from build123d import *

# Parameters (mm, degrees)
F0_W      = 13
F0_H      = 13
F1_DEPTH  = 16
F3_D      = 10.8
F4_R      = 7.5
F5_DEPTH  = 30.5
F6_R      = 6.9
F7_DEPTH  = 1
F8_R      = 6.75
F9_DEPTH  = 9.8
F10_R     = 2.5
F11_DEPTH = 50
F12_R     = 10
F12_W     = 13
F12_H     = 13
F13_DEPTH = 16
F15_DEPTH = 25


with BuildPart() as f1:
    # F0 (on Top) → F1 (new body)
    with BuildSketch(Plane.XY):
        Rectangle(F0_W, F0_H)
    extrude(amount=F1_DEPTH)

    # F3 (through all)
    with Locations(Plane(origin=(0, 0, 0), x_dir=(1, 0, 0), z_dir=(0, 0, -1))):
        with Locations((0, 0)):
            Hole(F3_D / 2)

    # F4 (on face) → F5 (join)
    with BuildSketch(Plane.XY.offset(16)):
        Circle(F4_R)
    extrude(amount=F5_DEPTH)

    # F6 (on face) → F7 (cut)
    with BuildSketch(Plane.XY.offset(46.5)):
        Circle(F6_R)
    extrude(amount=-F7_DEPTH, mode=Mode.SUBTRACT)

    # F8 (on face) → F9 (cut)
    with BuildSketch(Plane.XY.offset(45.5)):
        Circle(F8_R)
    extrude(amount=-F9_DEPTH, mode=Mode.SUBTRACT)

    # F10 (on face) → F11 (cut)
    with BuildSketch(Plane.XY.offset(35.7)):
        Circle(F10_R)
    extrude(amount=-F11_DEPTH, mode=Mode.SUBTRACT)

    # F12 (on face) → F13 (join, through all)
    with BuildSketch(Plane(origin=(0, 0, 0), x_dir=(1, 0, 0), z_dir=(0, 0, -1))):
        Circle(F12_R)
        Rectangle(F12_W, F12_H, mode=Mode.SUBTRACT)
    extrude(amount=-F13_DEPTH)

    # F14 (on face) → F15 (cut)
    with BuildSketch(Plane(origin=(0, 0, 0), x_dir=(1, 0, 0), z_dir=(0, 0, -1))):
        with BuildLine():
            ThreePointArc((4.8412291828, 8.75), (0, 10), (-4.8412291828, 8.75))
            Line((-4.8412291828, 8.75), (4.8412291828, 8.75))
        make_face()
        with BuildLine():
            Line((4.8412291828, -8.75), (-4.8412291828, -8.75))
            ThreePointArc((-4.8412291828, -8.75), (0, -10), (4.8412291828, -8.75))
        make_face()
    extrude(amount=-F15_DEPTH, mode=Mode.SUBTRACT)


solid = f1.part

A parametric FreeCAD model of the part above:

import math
import FreeCAD as App
import Part
import Sketcher
Q = App.Units.Quantity

doc = App.newDocument("Part")
body = doc.addObject("PartDesign::Body", "Body")

sketch1 = doc.addObject("Sketcher::SketchObject", "Sketch")
body.addObject(sketch1)
sketch1.AttachmentSupport = (doc.XY_Plane, [""])
sketch1.MapMode = "FlatFace"
sketch1.addGeometry([
    Part.LineSegment(App.Vector(-6, 6, 0), App.Vector(-6, -6, 0)),
    Part.LineSegment(App.Vector(-6, -6, 0), App.Vector(6, -6, 0)),
    Part.LineSegment(App.Vector(6, -6, 0), App.Vector(6, 6, 0)),
    Part.LineSegment(App.Vector(6, 6, 0), App.Vector(-6, 6, 0)),
], False)
sketch1.addConstraint([
    Sketcher.Constraint("Coincident", 0, 2, 1, 1),
    Sketcher.Constraint("Coincident", 1, 2, 2, 1),
    Sketcher.Constraint("Coincident", 2, 2, 3, 1),
    Sketcher.Constraint("Coincident", 3, 2, 0, 1),
    Sketcher.Constraint("Vertical", 0),
    Sketcher.Constraint("Horizontal", 1),
    Sketcher.Constraint("Vertical", 2),
    Sketcher.Constraint("Horizontal", 3),
    Sketcher.Constraint("Symmetric", 0, 2, 2, 2, -1, 1),
    Sketcher.Constraint("Equal", 3, 0),
    Sketcher.Constraint("DistanceX", 1, 1, 1, 2, Q("13 mm")),
])
pad1 = doc.addObject("PartDesign::Pad", "Pad")
body.addObject(pad1)
pad1.Profile = sketch1
pad1.Length = 16

sketch2 = doc.addObject("Sketcher::SketchObject", "Sketch001")
body.addObject(sketch2)
sketch2.AttachmentSupport = (doc.XY_Plane, [""])
sketch2.MapMode = "FlatFace"
sketch2.addGeometry(Part.Circle(App.Vector(0, 0, 0), App.Vector(0, 0, 1), 5), False)
sketch2.addConstraint([
    Sketcher.Constraint("Coincident", 0, 3, -1, 1),
    Sketcher.Constraint("Diameter", 0, Q("10.8 mm")),
])
doc.recompute()
hole = doc.addObject("PartDesign::Hole", "Hole")
body.addObject(hole)
hole.Profile = sketch2
hole.ThreadType = "None"
hole.Diameter = 10.8
hole.DepthType = "ThroughAll"
hole.Reversed = True

sketch3 = doc.addObject("Sketcher::SketchObject", "Sketch002")
body.addObject(sketch3)
sketch3.AttachmentSupport = (doc.XY_Plane, [""])
sketch3.MapMode = "FlatFace"
sketch3.AttachmentOffset = App.Placement(App.Vector(0, 0, 16), App.Rotation())
sketch3.addGeometry(Part.Circle(App.Vector(0, 0, 0), App.Vector(0, 0, 1), 8), False)
sketch3.addConstraint([
    Sketcher.Constraint("Coincident", 0, 3, -1, 1),
    Sketcher.Constraint("Diameter", 0, Q("15 mm")),
])
pad2 = doc.addObject("PartDesign::Pad", "Pad001")
body.addObject(pad2)
pad2.Profile = sketch3
pad2.Length = 30.5

sketch4 = doc.addObject("Sketcher::SketchObject", "Sketch003")
body.addObject(sketch4)
sketch4.AttachmentSupport = (doc.XY_Plane, [""])
sketch4.MapMode = "FlatFace"
sketch4.AttachmentOffset = App.Placement(App.Vector(0, 0, 46.5), App.Rotation())
sketch4.addGeometry(Part.Circle(App.Vector(0, 0, 0), App.Vector(0, 0, 1), 7), False)
sketch4.addConstraint([
    Sketcher.Constraint("Coincident", 0, 3, -1, 1),
    Sketcher.Constraint("Diameter", 0, Q("13.8 mm")),
])
pocket1 = doc.addObject("PartDesign::Pocket", "Pocket")
body.addObject(pocket1)
pocket1.Profile = sketch4
pocket1.Length = 1

sketch5 = doc.addObject("Sketcher::SketchObject", "Sketch004")
body.addObject(sketch5)
sketch5.AttachmentSupport = (doc.XY_Plane, [""])
sketch5.MapMode = "FlatFace"
sketch5.AttachmentOffset = App.Placement(App.Vector(0, 0, 45.5), App.Rotation())
sketch5.addGeometry(Part.Circle(App.Vector(0, 0, 0), App.Vector(0, 0, 1), 7), False)
sketch5.addConstraint([
    Sketcher.Constraint("Coincident", 0, 3, -1, 1),
    Sketcher.Constraint("Diameter", 0, Q("13.5 mm")),
])
pocket2 = doc.addObject("PartDesign::Pocket", "Pocket001")
body.addObject(pocket2)
pocket2.Profile = sketch5
pocket2.Length = 9.8

sketch6 = doc.addObject("Sketcher::SketchObject", "Sketch005")
body.addObject(sketch6)
sketch6.AttachmentSupport = (doc.XY_Plane, [""])
sketch6.MapMode = "FlatFace"
sketch6.AttachmentOffset = App.Placement(App.Vector(0, 0, 35.7), App.Rotation())
sketch6.addGeometry(Part.Circle(App.Vector(0, 0, 0), App.Vector(0, 0, 1), 2.5), False)
sketch6.addConstraint([
    Sketcher.Constraint("Coincident", 0, 3, -1, 1),
    Sketcher.Constraint("Diameter", 0, Q("5 mm")),
])
pocket3 = doc.addObject("PartDesign::Pocket", "Pocket002")
body.addObject(pocket3)
pocket3.Profile = sketch6
pocket3.Length = 50

sketch7 = doc.addObject("Sketcher::SketchObject", "Sketch006")
body.addObject(sketch7)
sketch7.AttachmentSupport = (doc.XY_Plane, [""])
sketch7.MapMode = "FlatFace"
sketch7.addGeometry([
    Part.Circle(App.Vector(0, 0, 0), App.Vector(0, 0, 1), 10),
    Part.LineSegment(App.Vector(6, 6, 0), App.Vector(-6, 6, 0)),
    Part.LineSegment(App.Vector(-6, 6, 0), App.Vector(-6, -6, 0)),
    Part.LineSegment(App.Vector(-6, -6, 0), App.Vector(6, -6, 0)),
    Part.LineSegment(App.Vector(6, -6, 0), App.Vector(6, 6, 0)),
], False)
sketch7.addConstraint([
    Sketcher.Constraint("Coincident", 1, 2, 2, 1),
    Sketcher.Constraint("Coincident", 2, 2, 3, 1),
    Sketcher.Constraint("Coincident", 3, 2, 4, 1),
    Sketcher.Constraint("Coincident", 4, 2, 1, 1),
    Sketcher.Constraint("Horizontal", 1),
    Sketcher.Constraint("Vertical", 2),
    Sketcher.Constraint("Horizontal", 3),
    Sketcher.Constraint("Vertical", 4),
    Sketcher.Constraint("Coincident", 0, 3, -1, 1),
    Sketcher.Constraint("Symmetric", 1, 2, 3, 2, -1, 1),
    Sketcher.Constraint("Equal", 3, 2),
    Sketcher.Constraint("Diameter", 0, Q("20 mm")),
    Sketcher.Constraint("DistanceX", 1, 2, 1, 1, Q("13 mm")),
])
pad3 = doc.addObject("PartDesign::Pad", "Pad002")
body.addObject(pad3)
pad3.Profile = sketch7
pad3.Length = 16

sketch8 = doc.addObject("Sketcher::SketchObject", "Sketch007")
body.addObject(sketch8)
sketch8.AttachmentSupport = (doc.XY_Plane, [""])
sketch8.MapMode = "FlatFace"
sketch8.addGeometry([
    Part.ArcOfCircle(Part.Circle(App.Vector(0, 0, 0), App.Vector(0, 0, 1), 10), math.radians(-119), math.radians(-61)),
    Part.LineSegment(App.Vector(-5, -9, 0), App.Vector(5, -9, 0)),
    Part.LineSegment(App.Vector(5, 9, 0), App.Vector(-5, 9, 0)),
    Part.ArcOfCircle(Part.Circle(App.Vector(0, 0, 0), App.Vector(0, 0, 1), 10), math.radians(61), math.radians(119)),
], False)
sketch8.addConstraint([
    Sketcher.Constraint("Coincident", 0, 1, 1, 1),
    Sketcher.Constraint("Coincident", 1, 2, 0, 2),
    Sketcher.Constraint("Coincident", 2, 1, 3, 1),
    Sketcher.Constraint("Coincident", 3, 2, 2, 2),
    Sketcher.Constraint("Horizontal", 1),
    Sketcher.Constraint("Horizontal", 2),
    Sketcher.Constraint("Coincident", 0, 3, -1, 1),
    Sketcher.Constraint("Coincident", 3, 3, -1, 1),
    Sketcher.Constraint("Equal", 0, 3),
    Sketcher.Constraint("Vertical", 1, 2, 2, 1),
    Sketcher.Constraint("Radius", 0, Q("10 mm")),
    Sketcher.Constraint("DistanceY", 1, 2, 2, 1, Q("17.5 mm")),
])
pocket4 = doc.addObject("PartDesign::Pocket", "Pocket003")
body.addObject(pocket4)
pocket4.Profile = sketch8
pocket4.Length = 25
pocket4.Reversed = True

doc.recompute()
